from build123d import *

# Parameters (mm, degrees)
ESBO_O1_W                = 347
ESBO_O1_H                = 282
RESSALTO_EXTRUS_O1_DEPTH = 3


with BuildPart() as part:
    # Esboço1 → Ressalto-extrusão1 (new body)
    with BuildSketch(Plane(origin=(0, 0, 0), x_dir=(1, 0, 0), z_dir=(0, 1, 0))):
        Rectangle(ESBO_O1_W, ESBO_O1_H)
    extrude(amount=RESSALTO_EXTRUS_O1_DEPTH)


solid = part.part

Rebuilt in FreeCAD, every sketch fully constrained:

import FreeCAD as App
import Part
import Sketcher

V = App.Vector

doc = App.newDocument("Part")
body = doc.addObject("PartDesign::Body", "Body")

# Sketch on XZ plane
sketch1 = body.newObject("Sketcher::SketchObject", "Sketch")
sketch1.AttachmentSupport = (doc.getObject("XZ_Plane"), [""])
sketch1.MapMode = "FlatFace"
sketch1.addGeometry(Part.LineSegment(V(-174, -141, 0), V(-174, 141, 0)), False)
sketch1.addGeometry(Part.LineSegment(V(-174, 141, 0), V(174, 141, 0)), False)
sketch1.addGeometry(Part.LineSegment(V(174, 141, 0), V(174, -141, 0)), False)
sketch1.addGeometry(Part.LineSegment(V(174, -141, 0), V(-174, -141, 0)), False)
sketch1.addConstraint(Sketcher.Constraint("Coincident", 0, 2, 1, 1))
sketch1.addConstraint(Sketcher.Constraint("Coincident", 1, 2, 2, 1))
sketch1.addConstraint(Sketcher.Constraint("Coincident", 2, 2, 3, 1))
sketch1.addConstraint(Sketcher.Constraint("Coincident", 3, 2, 0, 1))
sketch1.addConstraint(Sketcher.Constraint("Vertical", 0))
sketch1.addConstraint(Sketcher.Constraint("Horizontal", 1))
sketch1.addConstraint(Sketcher.Constraint("Vertical", 2))
sketch1.addConstraint(Sketcher.Constraint("Horizontal", 3))
sketch1.addConstraint(Sketcher.Constraint("Symmetric", 0, 2, 2, 2, -1, 1))
sketch1.addConstraint(Sketcher.Constraint("DistanceX", 1, 1, 1, 2, 347.0))
sketch1.addConstraint(Sketcher.Constraint("DistanceY", 0, 1, 0, 2, 282.0))
pad1 = body.newObject("PartDesign::Pad", "Pad")
pad1.Profile = sketch1
pad1.Length = 3
pad1.Reversed = True

doc.recompute()
